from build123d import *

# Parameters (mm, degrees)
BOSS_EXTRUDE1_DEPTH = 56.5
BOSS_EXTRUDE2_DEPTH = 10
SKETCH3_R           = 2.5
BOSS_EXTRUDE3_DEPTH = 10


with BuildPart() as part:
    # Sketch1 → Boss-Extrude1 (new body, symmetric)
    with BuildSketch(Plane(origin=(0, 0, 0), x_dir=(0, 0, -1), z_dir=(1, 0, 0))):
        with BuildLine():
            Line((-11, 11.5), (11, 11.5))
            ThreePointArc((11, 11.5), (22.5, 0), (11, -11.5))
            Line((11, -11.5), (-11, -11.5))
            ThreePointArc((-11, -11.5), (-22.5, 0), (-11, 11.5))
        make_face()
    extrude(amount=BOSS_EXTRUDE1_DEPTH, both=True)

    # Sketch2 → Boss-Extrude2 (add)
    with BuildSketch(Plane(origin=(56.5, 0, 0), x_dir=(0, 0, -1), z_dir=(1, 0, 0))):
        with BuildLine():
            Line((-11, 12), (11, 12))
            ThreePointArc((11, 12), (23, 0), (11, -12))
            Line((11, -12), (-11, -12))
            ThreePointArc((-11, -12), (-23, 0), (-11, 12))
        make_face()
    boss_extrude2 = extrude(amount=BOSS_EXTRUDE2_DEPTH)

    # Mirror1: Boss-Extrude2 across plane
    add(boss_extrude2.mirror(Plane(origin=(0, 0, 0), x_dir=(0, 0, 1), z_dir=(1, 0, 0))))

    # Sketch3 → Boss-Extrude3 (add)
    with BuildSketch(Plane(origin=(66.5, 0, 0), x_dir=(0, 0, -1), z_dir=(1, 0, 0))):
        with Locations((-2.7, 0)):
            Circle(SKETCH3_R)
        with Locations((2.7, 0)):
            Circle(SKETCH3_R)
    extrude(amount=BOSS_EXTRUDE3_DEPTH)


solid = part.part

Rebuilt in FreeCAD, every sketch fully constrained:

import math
import FreeCAD as App
import Part
import Sketcher
from FreeCAD import Vector
Q = App.Units.Quantity

doc = App.newDocument("Part")
body = doc.addObject("PartDesign::Body", "Body")

sketch1 = body.newObject("Sketcher::SketchObject", "Sketch")
sketch1.AttachmentSupport = (doc.getObject("YZ_Plane"), [""])
sketch1.MapMode = "FlatFace"
sketch1.addGeometry([
    Part.LineSegment(Vector(12, -11, 0), Vector(12, 11, 0)),
    Part.ArcOfCircle(Part.Circle(Vector(0, 11, 0), Vector(0, 0, 1), 12), math.radians(0), math.radians(180)),
    Part.LineSegment(Vector(-12, 11, 0), Vector(-12, -11, 0)),
    Part.ArcOfCircle(Part.Circle(Vector(0, -11, 0), Vector(0, 0, 1), 12), math.radians(180), math.radians(360)),
], False)
sketch1.addConstraint([
    Sketcher.Constraint("Tangent", 0, 2, 1, 1),
    Sketcher.Constraint("Tangent", 1, 2, 2, 1),
    Sketcher.Constraint("Tangent", 2, 2, 3, 1),
    Sketcher.Constraint("Tangent", 3, 2, 0, 1),
    Sketcher.Constraint("Vertical", 0),
    Sketcher.Constraint("Vertical", 2),
    Sketcher.Constraint("Symmetric", 1, 3, 3, 3, -1, 1),
    Sketcher.Constraint("Radius", 1, Q("11.5 mm")),
    Sketcher.Constraint("DistanceY", 0, 1, 0, 2, Q("22 mm")),
])
pad1 = body.newObject("PartDesign::Pad", "Pad")
pad1.Profile = sketch1
pad1.Length = 113
pad1.Midplane = True

sketch2 = body.newObject("Sketcher::SketchObject", "Sketch001")
sketch2.AttachmentSupport = (doc.getObject("YZ_Plane"), [""])
sketch2.MapMode = "FlatFace"
sketch2.AttachmentOffset = App.Placement(Vector(0, 0, 56.5), App.Rotation())
sketch2.addGeometry([
    Part.LineSegment(Vector(12, -11, 0), Vector(12, 11, 0)),
    Part.ArcOfCircle(Part.Circle(Vector(0, 11, 0), Vector(0, 0, 1), 12), math.radians(0), math.radians(180)),
    Part.LineSegment(Vector(-12, 11, 0), Vector(-12, -11, 0)),
    Part.ArcOfCircle(Part.Circle(Vector(0, -11, 0), Vector(0, 0, 1), 12), math.radians(180), math.radians(360)),
], False)
sketch2.addConstraint([
    Sketcher.Constraint("Tangent", 0, 2, 1, 1),
    Sketcher.Constraint("Tangent", 1, 2, 2, 1),
    Sketcher.Constraint("Tangent", 2, 2, 3, 1),
    Sketcher.Constraint("Tangent", 3, 2, 0, 1),
    Sketcher.Constraint("Vertical", 0),
    Sketcher.Constraint("Vertical", 2),
    Sketcher.Constraint("Symmetric", 1, 3, 3, 3, -1, 1),
    Sketcher.Constraint("Radius", 1, Q("12 mm")),
    Sketcher.Constraint("DistanceY", 0, 1, 0, 2, Q("22 mm")),
])
pad2 = body.newObject("PartDesign::Pad", "Pad001")
pad2.Profile = sketch2
pad2.Length = 10
doc.recompute()

mirrored = body.newObject("PartDesign::Mirrored", "Mirrored")
mirrored.Originals = [pad2]
mirrored.MirrorPlane = (doc.getObject("YZ_Plane"), [""])
body.Tip = mirrored

sketch3 = body.newObject("Sketcher::SketchObject", "Sketch002")
sketch3.AttachmentSupport = (doc.getObject("YZ_Plane"), [""])
sketch3.MapMode = "FlatFace"
sketch3.AttachmentOffset = App.Placement(Vector(0, 0, 66.5), App.Rotation())
sketch3.addGeometry([
    Part.Circle(Vector(0, 2.7, 0), Vector(0, 0, 1), 2.5),
    Part.Circle(Vector(0, -2.7, 0), Vector(0, 0, 1), 2.5),
], False)
sketch3.addConstraint([
    Sketcher.Constraint("Equal", 0, 1),
    Sketcher.Constraint("Symmetric", 0, 3, 1, 3, -1, 1),
    Sketcher.Constraint("PointOnObject", 0, 3, -2),
    Sketcher.Constraint("Diameter", 0, Q("5 mm")),
    Sketcher.Constraint("DistanceY", -1, 1, 0, 3, Q("2.7 mm")),
])
pad3 = body.newObject("PartDesign::Pad", "Pad002")
pad3.Profile = sketch3
pad3.Length = 10

doc.recompute()
